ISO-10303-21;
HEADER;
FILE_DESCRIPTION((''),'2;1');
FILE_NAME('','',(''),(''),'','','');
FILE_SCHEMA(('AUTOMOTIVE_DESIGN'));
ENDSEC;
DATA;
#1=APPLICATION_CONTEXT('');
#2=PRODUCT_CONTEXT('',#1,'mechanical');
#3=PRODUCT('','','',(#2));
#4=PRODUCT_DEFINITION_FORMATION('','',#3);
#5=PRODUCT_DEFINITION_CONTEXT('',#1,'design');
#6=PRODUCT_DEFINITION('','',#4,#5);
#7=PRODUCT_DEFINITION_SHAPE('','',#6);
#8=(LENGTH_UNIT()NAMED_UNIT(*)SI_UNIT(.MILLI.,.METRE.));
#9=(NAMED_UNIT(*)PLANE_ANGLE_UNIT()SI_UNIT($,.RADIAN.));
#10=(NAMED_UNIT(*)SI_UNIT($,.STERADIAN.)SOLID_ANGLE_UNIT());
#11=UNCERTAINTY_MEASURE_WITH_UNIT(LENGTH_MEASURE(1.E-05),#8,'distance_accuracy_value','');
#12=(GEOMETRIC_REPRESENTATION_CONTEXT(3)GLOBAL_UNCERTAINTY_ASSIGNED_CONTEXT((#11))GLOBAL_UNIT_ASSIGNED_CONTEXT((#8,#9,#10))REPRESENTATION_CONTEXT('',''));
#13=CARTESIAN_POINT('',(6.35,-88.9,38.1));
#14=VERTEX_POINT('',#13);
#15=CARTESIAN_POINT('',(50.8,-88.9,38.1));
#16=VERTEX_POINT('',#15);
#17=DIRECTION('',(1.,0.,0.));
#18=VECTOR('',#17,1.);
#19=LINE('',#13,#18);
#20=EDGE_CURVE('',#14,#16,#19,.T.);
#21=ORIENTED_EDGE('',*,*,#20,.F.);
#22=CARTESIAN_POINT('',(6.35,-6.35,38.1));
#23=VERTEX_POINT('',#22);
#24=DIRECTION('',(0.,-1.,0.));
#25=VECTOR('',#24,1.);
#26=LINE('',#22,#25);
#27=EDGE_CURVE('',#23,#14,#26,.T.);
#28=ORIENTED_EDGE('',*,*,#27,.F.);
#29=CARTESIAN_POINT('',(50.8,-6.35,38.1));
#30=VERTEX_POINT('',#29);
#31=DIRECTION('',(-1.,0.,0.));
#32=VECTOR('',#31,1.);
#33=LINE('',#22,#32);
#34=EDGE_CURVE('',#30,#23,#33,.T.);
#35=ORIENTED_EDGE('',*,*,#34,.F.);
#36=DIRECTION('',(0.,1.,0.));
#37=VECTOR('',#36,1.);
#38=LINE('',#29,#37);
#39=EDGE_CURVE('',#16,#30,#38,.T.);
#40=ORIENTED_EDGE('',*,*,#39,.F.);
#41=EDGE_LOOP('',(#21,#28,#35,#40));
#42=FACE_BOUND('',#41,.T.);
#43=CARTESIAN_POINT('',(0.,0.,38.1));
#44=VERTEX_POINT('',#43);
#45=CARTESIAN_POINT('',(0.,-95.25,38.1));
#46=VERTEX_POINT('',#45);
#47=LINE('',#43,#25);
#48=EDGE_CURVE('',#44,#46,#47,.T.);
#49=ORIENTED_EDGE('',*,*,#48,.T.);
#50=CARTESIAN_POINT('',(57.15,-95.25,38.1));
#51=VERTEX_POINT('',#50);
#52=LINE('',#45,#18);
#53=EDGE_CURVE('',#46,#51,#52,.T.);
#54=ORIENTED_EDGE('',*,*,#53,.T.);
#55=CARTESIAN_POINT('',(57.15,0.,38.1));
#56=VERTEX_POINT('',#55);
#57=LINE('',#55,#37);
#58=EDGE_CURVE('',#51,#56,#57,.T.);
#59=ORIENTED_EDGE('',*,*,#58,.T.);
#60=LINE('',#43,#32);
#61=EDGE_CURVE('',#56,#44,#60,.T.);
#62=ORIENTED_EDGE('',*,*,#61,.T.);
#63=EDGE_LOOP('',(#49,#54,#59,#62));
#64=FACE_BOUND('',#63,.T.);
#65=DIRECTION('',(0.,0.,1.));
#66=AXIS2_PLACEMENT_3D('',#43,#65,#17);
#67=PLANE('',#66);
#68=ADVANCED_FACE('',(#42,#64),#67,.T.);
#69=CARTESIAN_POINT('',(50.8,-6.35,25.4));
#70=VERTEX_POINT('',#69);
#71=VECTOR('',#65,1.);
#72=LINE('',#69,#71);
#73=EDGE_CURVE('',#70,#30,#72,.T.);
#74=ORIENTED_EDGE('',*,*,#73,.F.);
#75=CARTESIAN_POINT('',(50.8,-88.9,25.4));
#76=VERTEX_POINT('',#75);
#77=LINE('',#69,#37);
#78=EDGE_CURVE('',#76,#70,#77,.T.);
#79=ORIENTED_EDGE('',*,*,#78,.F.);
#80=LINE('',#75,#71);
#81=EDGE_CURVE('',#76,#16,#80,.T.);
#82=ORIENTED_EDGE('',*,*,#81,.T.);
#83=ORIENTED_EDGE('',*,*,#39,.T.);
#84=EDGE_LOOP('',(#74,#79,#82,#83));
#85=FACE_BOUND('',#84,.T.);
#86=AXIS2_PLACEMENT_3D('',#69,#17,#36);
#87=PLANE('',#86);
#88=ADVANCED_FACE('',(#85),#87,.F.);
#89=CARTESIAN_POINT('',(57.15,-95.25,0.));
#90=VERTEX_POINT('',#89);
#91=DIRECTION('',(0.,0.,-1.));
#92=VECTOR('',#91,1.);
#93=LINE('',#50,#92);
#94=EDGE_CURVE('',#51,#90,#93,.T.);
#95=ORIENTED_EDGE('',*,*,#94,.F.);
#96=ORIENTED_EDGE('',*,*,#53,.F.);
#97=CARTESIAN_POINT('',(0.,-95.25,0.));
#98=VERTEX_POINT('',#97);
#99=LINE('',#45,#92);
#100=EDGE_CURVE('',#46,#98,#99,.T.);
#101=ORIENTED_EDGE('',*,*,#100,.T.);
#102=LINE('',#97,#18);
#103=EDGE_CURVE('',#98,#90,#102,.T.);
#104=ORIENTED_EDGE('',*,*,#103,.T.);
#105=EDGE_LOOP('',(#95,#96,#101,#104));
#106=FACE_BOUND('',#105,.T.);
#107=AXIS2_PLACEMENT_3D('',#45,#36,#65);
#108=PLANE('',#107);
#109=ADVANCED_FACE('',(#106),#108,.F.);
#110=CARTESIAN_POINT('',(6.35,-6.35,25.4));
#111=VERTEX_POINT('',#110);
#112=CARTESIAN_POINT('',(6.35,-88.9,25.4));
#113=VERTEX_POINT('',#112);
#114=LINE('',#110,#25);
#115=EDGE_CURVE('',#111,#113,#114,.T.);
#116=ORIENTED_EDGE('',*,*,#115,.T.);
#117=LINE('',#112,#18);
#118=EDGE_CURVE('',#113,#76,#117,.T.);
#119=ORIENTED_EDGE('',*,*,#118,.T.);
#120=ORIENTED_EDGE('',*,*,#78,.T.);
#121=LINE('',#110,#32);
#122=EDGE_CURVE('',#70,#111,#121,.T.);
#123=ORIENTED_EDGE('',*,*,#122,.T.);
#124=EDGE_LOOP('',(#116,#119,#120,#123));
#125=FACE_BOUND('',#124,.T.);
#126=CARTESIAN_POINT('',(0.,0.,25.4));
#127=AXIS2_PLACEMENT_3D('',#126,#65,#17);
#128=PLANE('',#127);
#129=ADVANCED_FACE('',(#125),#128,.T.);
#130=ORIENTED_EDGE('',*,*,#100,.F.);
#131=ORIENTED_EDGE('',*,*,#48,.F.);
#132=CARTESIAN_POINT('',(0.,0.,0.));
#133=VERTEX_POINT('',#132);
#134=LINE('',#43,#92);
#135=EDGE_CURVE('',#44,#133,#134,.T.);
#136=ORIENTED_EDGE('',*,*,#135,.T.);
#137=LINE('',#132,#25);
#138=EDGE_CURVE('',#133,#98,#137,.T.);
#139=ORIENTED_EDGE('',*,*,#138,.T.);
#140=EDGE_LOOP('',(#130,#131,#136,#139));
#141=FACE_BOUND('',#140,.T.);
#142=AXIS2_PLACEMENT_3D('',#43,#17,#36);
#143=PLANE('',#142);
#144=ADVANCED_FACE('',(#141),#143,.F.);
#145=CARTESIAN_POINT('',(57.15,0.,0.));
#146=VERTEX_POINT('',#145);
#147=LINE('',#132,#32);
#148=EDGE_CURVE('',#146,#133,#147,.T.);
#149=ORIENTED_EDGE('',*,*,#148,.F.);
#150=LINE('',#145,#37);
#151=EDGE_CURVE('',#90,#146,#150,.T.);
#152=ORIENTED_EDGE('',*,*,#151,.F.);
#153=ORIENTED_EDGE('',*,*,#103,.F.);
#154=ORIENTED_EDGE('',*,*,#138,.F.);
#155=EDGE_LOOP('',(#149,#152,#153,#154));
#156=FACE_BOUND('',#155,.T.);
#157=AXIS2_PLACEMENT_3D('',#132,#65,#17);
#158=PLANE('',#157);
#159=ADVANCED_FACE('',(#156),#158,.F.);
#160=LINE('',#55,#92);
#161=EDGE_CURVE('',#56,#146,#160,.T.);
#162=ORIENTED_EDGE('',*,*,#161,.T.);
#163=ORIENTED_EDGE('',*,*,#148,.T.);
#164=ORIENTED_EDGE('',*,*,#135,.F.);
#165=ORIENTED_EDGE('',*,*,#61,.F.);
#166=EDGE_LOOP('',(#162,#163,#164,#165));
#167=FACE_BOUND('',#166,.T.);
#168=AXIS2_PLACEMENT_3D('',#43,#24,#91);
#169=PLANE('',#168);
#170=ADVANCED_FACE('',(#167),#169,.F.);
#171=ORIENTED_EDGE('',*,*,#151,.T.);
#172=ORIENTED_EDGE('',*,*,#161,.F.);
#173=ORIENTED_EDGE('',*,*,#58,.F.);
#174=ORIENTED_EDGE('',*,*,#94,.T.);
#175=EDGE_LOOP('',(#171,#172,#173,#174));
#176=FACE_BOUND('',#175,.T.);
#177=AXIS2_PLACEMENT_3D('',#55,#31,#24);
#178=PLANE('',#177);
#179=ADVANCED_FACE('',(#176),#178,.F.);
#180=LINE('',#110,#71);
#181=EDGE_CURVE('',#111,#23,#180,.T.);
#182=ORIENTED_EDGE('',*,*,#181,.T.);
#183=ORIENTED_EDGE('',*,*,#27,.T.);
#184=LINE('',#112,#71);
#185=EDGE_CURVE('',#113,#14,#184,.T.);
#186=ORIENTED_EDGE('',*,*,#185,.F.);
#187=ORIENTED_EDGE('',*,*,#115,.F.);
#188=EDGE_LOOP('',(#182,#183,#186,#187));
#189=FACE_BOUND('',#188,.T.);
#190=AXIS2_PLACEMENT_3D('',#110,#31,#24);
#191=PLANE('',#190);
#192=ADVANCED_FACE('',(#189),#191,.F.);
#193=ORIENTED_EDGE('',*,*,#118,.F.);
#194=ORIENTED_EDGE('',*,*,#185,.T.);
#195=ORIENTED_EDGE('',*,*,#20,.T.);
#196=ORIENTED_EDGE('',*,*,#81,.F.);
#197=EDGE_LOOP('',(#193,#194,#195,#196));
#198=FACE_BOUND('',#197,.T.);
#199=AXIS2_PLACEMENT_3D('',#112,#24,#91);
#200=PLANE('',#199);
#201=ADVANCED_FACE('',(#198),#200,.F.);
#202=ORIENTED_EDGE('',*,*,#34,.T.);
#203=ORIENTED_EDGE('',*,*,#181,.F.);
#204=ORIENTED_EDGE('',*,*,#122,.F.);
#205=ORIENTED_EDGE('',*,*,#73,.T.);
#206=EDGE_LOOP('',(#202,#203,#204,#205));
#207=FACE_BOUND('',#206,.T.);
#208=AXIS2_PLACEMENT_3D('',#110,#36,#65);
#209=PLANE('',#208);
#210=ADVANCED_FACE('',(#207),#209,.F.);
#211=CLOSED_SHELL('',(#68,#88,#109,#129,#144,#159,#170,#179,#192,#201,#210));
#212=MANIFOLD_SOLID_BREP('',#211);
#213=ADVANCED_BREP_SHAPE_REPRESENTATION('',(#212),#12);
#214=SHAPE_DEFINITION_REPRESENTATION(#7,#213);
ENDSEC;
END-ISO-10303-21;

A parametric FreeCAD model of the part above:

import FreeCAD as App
import Part
import Sketcher

V = App.Vector
Q = App.Units.Quantity

doc = App.newDocument("Part")
body = doc.addObject("PartDesign::Body", "Body")

sketch1 = doc.addObject("Sketcher::SketchObject", "Sketch")
body.addObject(sketch1)
sketch1.AttachmentSupport = (doc.XY_Plane, [""])
sketch1.MapMode = "FlatFace"
sketch1.addGeometry([
    Part.LineSegment(V(0, 0, 0), V(0, -95.25, 0)),
    Part.LineSegment(V(0, -95.25, 0), V(57.15, -95.25, 0)),
    Part.LineSegment(V(57.15, -95.25, 0), V(57.15, 0, 0)),
    Part.LineSegment(V(57.15, 0, 0), V(0, 0, 0)),
], False)
sketch1.addConstraint([
    Sketcher.Constraint("Coincident", 0, 2, 1, 1),
    Sketcher.Constraint("Coincident", 1, 2, 2, 1),
    Sketcher.Constraint("Coincident", 2, 2, 3, 1),
    Sketcher.Constraint("Coincident", 3, 2, 0, 1),
    Sketcher.Constraint("Vertical", 0),
    Sketcher.Constraint("Horizontal", 1),
    Sketcher.Constraint("Vertical", 2),
    Sketcher.Constraint("Horizontal", 3),
    Sketcher.Constraint("Coincident", 3, 2, -1, 1),
    Sketcher.Constraint("DistanceX", 1, 1, 1, 2, Q("2.25 in")),
    Sketcher.Constraint("DistanceY", 0, 2, 0, 1, Q("3.75 in")),
])
pad1 = doc.addObject("PartDesign::Pad", "Pad")
body.addObject(pad1)
pad1.Profile = sketch1
pad1.Length = Q("1.5 in")

sketch2 = doc.addObject("Sketcher::SketchObject", "Sketch001")
body.addObject(sketch2)
sketch2.AttachmentSupport = (doc.XY_Plane, [""])
sketch2.MapMode = "FlatFace"
sketch2.AttachmentOffset = App.Placement(V(0, 0, 1.5 * 25.4), App.Rotation())
sketch2.addGeometry([
    Part.LineSegment(V(6.35, -6.35, 0), V(6.35, -88.9, 0)),
    Part.LineSegment(V(6.35, -88.9, 0), V(50.8, -88.9, 0)),
    Part.LineSegment(V(50.8, -88.9, 0), V(50.8, -6.35, 0)),
    Part.LineSegment(V(50.8, -6.35, 0), V(6.35, -6.35, 0)),
], False)
sketch2.addConstraint([
    Sketcher.Constraint("Coincident", 0, 2, 1, 1),
    Sketcher.Constraint("Coincident", 1, 2, 2, 1),
    Sketcher.Constraint("Coincident", 2, 2, 3, 1),
    Sketcher.Constraint("Coincident", 3, 2, 0, 1),
    Sketcher.Constraint("Vertical", 0),
    Sketcher.Constraint("Horizontal", 1),
    Sketcher.Constraint("Vertical", 2),
    Sketcher.Constraint("Horizontal", 3),
    Sketcher.Constraint("DistanceX", -1, 1, 1, 2, Q("2 in")),
    Sketcher.Constraint("DistanceX", 1, 1, 1, 2, Q("1.75 in")),
    Sketcher.Constraint("DistanceY", 0, 2, 0, 1, Q("3.25 in")),
    Sketcher.Constraint("DistanceY", 0, 2, -1, 1, Q("3.5 in")),
])
pocket1 = doc.addObject("PartDesign::Pocket", "Pocket")
body.addObject(pocket1)
pocket1.Profile = sketch2
pocket1.Length = Q("0.5 in")

doc.recompute()
